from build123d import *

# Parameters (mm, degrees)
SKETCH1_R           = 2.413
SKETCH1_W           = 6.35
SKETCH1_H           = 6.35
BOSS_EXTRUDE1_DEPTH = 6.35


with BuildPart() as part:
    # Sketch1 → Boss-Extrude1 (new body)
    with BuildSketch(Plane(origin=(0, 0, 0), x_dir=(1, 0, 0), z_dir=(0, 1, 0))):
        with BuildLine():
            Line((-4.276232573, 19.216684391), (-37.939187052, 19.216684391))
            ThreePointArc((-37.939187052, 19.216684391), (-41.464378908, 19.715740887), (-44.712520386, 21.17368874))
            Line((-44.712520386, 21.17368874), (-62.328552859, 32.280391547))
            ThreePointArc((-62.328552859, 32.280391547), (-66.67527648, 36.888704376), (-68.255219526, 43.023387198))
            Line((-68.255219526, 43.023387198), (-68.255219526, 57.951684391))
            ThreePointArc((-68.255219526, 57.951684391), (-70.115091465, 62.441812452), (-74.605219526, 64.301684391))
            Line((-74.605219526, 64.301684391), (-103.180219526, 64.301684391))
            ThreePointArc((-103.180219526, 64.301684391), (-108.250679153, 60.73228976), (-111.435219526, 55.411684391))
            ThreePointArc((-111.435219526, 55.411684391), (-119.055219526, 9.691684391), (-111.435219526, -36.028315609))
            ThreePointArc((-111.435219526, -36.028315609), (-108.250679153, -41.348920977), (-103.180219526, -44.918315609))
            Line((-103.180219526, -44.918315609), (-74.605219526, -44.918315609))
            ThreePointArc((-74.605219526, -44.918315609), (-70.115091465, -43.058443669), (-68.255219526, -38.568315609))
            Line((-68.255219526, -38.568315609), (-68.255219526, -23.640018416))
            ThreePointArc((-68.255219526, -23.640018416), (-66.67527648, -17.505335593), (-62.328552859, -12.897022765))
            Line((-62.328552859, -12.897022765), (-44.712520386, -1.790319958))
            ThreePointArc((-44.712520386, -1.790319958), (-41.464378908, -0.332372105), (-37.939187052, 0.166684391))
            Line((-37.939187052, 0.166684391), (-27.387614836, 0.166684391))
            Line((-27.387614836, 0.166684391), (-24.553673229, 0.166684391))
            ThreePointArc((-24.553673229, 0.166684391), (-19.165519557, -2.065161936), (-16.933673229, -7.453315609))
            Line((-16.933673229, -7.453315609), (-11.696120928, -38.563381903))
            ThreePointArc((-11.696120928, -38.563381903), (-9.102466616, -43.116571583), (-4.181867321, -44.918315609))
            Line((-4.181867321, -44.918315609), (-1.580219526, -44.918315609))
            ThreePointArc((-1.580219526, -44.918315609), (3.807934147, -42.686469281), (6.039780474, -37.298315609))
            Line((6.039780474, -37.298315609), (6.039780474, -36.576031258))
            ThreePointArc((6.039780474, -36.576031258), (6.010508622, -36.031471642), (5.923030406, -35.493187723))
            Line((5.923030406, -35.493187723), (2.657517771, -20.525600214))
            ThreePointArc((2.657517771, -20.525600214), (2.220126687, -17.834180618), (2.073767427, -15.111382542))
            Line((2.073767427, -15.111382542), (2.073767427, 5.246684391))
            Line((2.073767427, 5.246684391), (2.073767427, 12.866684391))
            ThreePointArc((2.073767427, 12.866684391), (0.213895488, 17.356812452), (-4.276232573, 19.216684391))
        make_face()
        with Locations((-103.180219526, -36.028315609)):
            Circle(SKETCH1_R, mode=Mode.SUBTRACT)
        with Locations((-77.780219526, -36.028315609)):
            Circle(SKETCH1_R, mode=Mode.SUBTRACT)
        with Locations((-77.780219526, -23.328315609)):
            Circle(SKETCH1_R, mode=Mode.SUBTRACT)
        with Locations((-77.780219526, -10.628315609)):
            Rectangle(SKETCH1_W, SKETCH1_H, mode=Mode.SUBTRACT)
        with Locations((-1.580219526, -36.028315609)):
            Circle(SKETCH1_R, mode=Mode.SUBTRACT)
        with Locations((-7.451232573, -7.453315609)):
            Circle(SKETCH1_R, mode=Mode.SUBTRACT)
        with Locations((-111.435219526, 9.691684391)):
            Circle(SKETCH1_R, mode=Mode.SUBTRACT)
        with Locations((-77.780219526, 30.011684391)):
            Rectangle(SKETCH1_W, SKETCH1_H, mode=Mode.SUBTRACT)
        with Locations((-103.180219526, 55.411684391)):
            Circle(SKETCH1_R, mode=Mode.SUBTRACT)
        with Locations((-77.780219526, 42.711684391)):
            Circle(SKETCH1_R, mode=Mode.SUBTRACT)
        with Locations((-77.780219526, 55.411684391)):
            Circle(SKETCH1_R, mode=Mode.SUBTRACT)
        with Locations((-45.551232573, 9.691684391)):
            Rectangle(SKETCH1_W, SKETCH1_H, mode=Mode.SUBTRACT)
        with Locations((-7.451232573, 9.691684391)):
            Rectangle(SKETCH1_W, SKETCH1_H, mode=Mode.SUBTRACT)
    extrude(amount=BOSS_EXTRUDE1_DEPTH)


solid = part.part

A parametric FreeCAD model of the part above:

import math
import FreeCAD as App
import Part
import Sketcher
Q = App.Units.Quantity

doc = App.newDocument("Part")
body = doc.addObject("PartDesign::Body", "Body")

sketch1 = body.newObject("Sketcher::SketchObject", "Sketch")
sketch1.AttachmentSupport = (doc.getObject("XZ_Plane"), [""])
sketch1.MapMode = "FlatFace"
sketch1.addGeometry([
    Part.LineSegment(App.Vector(-4.276233, -19.216684, 0), App.Vector(-37.939187, -19.216684, 0)),
    Part.ArcOfCircle(Part.Circle(App.Vector(-37.939187, -31.916684, 0), App.Vector(0, 0, 1), 12.7), math.radians(90), math.radians(122.230953)),
    Part.LineSegment(App.Vector(-44.71252, -21.173689, 0), App.Vector(-62.328553, -32.280392, 0)),
    Part.ArcOfCircle(Part.Circle(App.Vector(-55.55522, -43.023387, 0), App.Vector(0, 0, 1), 12.7), math.radians(122.230953), math.radians(180)),
    Part.LineSegment(App.Vector(-68.25522, -43.023387, 0), App.Vector(-68.25522, -57.951684, 0)),
    Part.ArcOfCircle(Part.Circle(App.Vector(-74.60522, -57.951684, 0), App.Vector(0, 0, 1), 6.35), math.radians(-90), math.radians(0)),
    Part.LineSegment(App.Vector(-74.60522, -64.301684, 0), App.Vector(-103.18022, -64.301684, 0)),
    Part.ArcOfCircle(Part.Circle(App.Vector(-97.302598, -50.566214, 0), App.Vector(0, 0, 1), 14.9402), math.radians(-161.075356), math.radians(-113.166837)),
    Part.ArcOfCircle(Part.Circle(App.Vector(21.91478, -9.691684, 0), App.Vector(0, 0, 1), 140.97), math.radians(161.075356), math.radians(198.924644)),
    Part.ArcOfCircle(Part.Circle(App.Vector(-97.302598, 31.182845, 0), App.Vector(0, 0, 1), 14.9402), math.radians(113.166837), math.radians(161.075356)),
    Part.LineSegment(App.Vector(-103.18022, 44.918316, 0), App.Vector(-74.60522, 44.918316, 0)),
    Part.ArcOfCircle(Part.Circle(App.Vector(-74.60522, 38.568316, 0), App.Vector(0, 0, 1), 6.35), math.radians(0), math.radians(90)),
    Part.LineSegment(App.Vector(-68.25522, 38.568316, 0), App.Vector(-68.25522, 23.640018, 0)),
    Part.ArcOfCircle(Part.Circle(App.Vector(-55.55522, 23.640018, 0), App.Vector(0, 0, 1), 12.7), math.radians(180), math.radians(237.769047)),
    Part.LineSegment(App.Vector(-62.328553, 12.897023, 0), App.Vector(-44.71252, 1.79032, 0)),
    Part.ArcOfCircle(Part.Circle(App.Vector(-37.939187, 12.533316, 0), App.Vector(0, 0, 1), 12.7), math.radians(-122.230953), math.radians(-90)),
    Part.LineSegment(App.Vector(-37.939187, -0.166684, 0), App.Vector(-24.553673, -0.166684, 0)),
    Part.ArcOfCircle(Part.Circle(App.Vector(-24.553673, 7.453316, 0), App.Vector(0, 0, 1), 7.62), math.radians(-90), math.radians(0)),
    Part.LineSegment(App.Vector(-16.933673, 7.453316, 0), App.Vector(-11.696121, 38.563382, 0)),
    Part.ArcOfCircle(Part.Circle(App.Vector(-4.181867, 37.298316, 0), App.Vector(0, 0, 1), 7.62), math.radians(90), math.radians(170.443553)),
    Part.LineSegment(App.Vector(-4.181867, 44.918316, 0), App.Vector(-1.58022, 44.918316, 0)),
    Part.ArcOfCircle(Part.Circle(App.Vector(-1.58022, 37.298316, 0), App.Vector(0, 0, 1), 7.62), math.radians(0), math.radians(90)),
    Part.LineSegment(App.Vector(6.03978, 37.298316, 0), App.Vector(6.03978, 36.576031, 0)),
    Part.ArcOfCircle(Part.Circle(App.Vector(0.95978, 36.576031, 0), App.Vector(0, 0, 1), 5.08), math.radians(-12.307494), math.radians(0)),
    Part.LineSegment(App.Vector(5.92303, 35.493188, 0), App.Vector(2.657518, 20.5256, 0)),
    Part.ArcOfCircle(Part.Circle(App.Vector(27.473767, 15.111383, 0), App.Vector(0, 0, 1), 25.4), math.radians(167.692506), math.radians(180)),
    Part.LineSegment(App.Vector(2.073767, 15.111383, 0), App.Vector(2.073767, -12.866684, 0)),
    Part.ArcOfCircle(Part.Circle(App.Vector(-4.276233, -12.866684, 0), App.Vector(0, 0, 1), 6.35), math.radians(-90), math.radians(0)),
    Part.Circle(App.Vector(-103.18022, 36.028316, 0), App.Vector(0, 0, 1), 2.413),
    Part.Circle(App.Vector(-77.78022, 36.028316, 0), App.Vector(0, 0, 1), 2.413),
    Part.Circle(App.Vector(-77.78022, 23.328316, 0), App.Vector(0, 0, 1), 2.413),
    Part.LineSegment(App.Vector(-74.60522, 13.803316, 0), App.Vector(-80.95522, 13.803316, 0)),
    Part.LineSegment(App.Vector(-80.95522, 13.803316, 0), App.Vector(-80.95522, 7.453316, 0)),
    Part.LineSegment(App.Vector(-80.95522, 7.453316, 0), App.Vector(-74.60522, 7.453316, 0)),
    Part.LineSegment(App.Vector(-74.60522, 7.453316, 0), App.Vector(-74.60522, 13.803316, 0)),
    Part.Circle(App.Vector(-1.58022, 36.028316, 0), App.Vector(0, 0, 1), 2.413),
    Part.Circle(App.Vector(-7.451233, 7.453316, 0), App.Vector(0, 0, 1), 2.413),
    Part.Circle(App.Vector(-111.43522, -9.691684, 0), App.Vector(0, 0, 1), 2.413),
    Part.LineSegment(App.Vector(-74.60522, -26.836684, 0), App.Vector(-80.95522, -26.836684, 0)),
    Part.LineSegment(App.Vector(-80.95522, -26.836684, 0), App.Vector(-80.95522, -33.186684, 0)),
    Part.LineSegment(App.Vector(-80.95522, -33.186684, 0), App.Vector(-74.60522, -33.186684, 0)),
    Part.LineSegment(App.Vector(-74.60522, -33.186684, 0), App.Vector(-74.60522, -26.836684, 0)),
    Part.Circle(App.Vector(-103.18022, -55.411684, 0), App.Vector(0, 0, 1), 2.413),
    Part.Circle(App.Vector(-77.78022, -42.711684, 0), App.Vector(0, 0, 1), 2.413),
    Part.Circle(App.Vector(-77.78022, -55.411684, 0), App.Vector(0, 0, 1), 2.413),
    Part.LineSegment(App.Vector(-42.376233, -6.516684, 0), App.Vector(-48.726233, -6.516684, 0)),
    Part.LineSegment(App.Vector(-48.726233, -6.516684, 0), App.Vector(-48.726233, -12.866684, 0)),
    Part.LineSegment(App.Vector(-48.726233, -12.866684, 0), App.Vector(-42.376233, -12.866684, 0)),
    Part.LineSegment(App.Vector(-42.376233, -12.866684, 0), App.Vector(-42.376233, -6.516684, 0)),
    Part.LineSegment(App.Vector(-4.276233, -6.516684, 0), App.Vector(-10.626233, -6.516684, 0)),
    Part.LineSegment(App.Vector(-10.626233, -6.516684, 0), App.Vector(-10.626233, -12.866684, 0)),
    Part.LineSegment(App.Vector(-10.626233, -12.866684, 0), App.Vector(-4.276233, -12.866684, 0)),
    Part.LineSegment(App.Vector(-4.276233, -12.866684, 0), App.Vector(-4.276233, -6.516684, 0)),
], False)
sketch1.addConstraint([
    Sketcher.Constraint("Tangent", 0, 2, 1, 1),
    Sketcher.Constraint("Tangent", 1, 2, 2, 1),
    Sketcher.Constraint("Tangent", 2, 2, 3, 1),
    Sketcher.Constraint("Tangent", 3, 2, 4, 1),
    Sketcher.Constraint("Tangent", 4, 2, 5, 2),
    Sketcher.Constraint("Tangent", 5, 1, 6, 1),
    Sketcher.Constraint("Coincident", 6, 2, 7, 2),
    Sketcher.Constraint("Tangent", 7, 1, 8, 2),
    Sketcher.Constraint("Tangent", 8, 1, 9, 2),
    Sketcher.Constraint("Coincident", 9, 1, 10, 1),
    Sketcher.Constraint("Tangent", 10, 2, 11, 2),
    Sketcher.Constraint("Tangent", 11, 1, 12, 1),
    Sketcher.Constraint("Tangent", 12, 2, 13, 1),
    Sketcher.Constraint("Tangent", 13, 2, 14, 1),
    Sketcher.Constraint("Tangent", 14, 2, 15, 1),
    Sketcher.Constraint("Tangent", 15, 2, 16, 1),
    Sketcher.Constraint("Tangent", 16, 2, 17, 1),
    Sketcher.Constraint("Coincident", 17, 2, 18, 1),
    Sketcher.Constraint("Tangent", 18, 2, 19, 2),
    Sketcher.Constraint("Tangent", 19, 1, 20, 1),
    Sketcher.Constraint("Tangent", 20, 2, 21, 2),
    Sketcher.Constraint("Tangent", 21, 1, 22, 1),
    Sketcher.Constraint("Tangent", 22, 2, 23, 2),
    Sketcher.Constraint("Tangent", 23, 1, 24, 1),
    Sketcher.Constraint("Tangent", 24, 2, 25, 1),
    Sketcher.Constraint("Tangent", 25, 2, 26, 1),
    Sketcher.Constraint("Tangent", 26, 2, 27, 2),
    Sketcher.Constraint("Tangent", 27, 1, 0, 1),
    Sketcher.Constraint("Coincident", 31, 2, 32, 1),
    Sketcher.Constraint("Coincident", 32, 2, 33, 1),
    Sketcher.Constraint("Coincident", 33, 2, 34, 1),
    Sketcher.Constraint("Coincident", 34, 2, 31, 1),
    Sketcher.Constraint("Coincident", 38, 2, 39, 1),
    Sketcher.Constraint("Coincident", 39, 2, 40, 1),
    Sketcher.Constraint("Coincident", 40, 2, 41, 1),
    Sketcher.Constraint("Coincident", 41, 2, 38, 1),
    Sketcher.Constraint("Coincident", 45, 2, 46, 1),
    Sketcher.Constraint("Coincident", 46, 2, 47, 1),
    Sketcher.Constraint("Coincident", 47, 2, 48, 1),
    Sketcher.Constraint("Coincident", 48, 2, 45, 1),
    Sketcher.Constraint("Coincident", 49, 2, 50, 1),
    Sketcher.Constraint("Coincident", 50, 2, 51, 1),
    Sketcher.Constraint("Coincident", 51, 2, 52, 1),
    Sketcher.Constraint("Coincident", 52, 2, 49, 1),
    Sketcher.Constraint("Horizontal", 0),
    Sketcher.Constraint("Vertical", 4),
    Sketcher.Constraint("Horizontal", 6),
    Sketcher.Constraint("Horizontal", 10),
    Sketcher.Constraint("Vertical", 12),
    Sketcher.Constraint("Horizontal", 16),
    Sketcher.Constraint("Horizontal", 20),
    Sketcher.Constraint("Vertical", 22),
    Sketcher.Constraint("Vertical", 26),
    Sketcher.Constraint("Horizontal", 31),
    Sketcher.Constraint("Vertical", 32),
    Sketcher.Constraint("Horizontal", 33),
    Sketcher.Constraint("Vertical", 34),
    Sketcher.Constraint("Horizontal", 38),
    Sketcher.Constraint("Vertical", 39),
    Sketcher.Constraint("Horizontal", 40),
    Sketcher.Constraint("Vertical", 41),
    Sketcher.Constraint("Horizontal", 45),
    Sketcher.Constraint("Vertical", 46),
    Sketcher.Constraint("Horizontal", 47),
    Sketcher.Constraint("Vertical", 48),
    Sketcher.Constraint("Horizontal", 49),
    Sketcher.Constraint("Vertical", 50),
    Sketcher.Constraint("Horizontal", 51),
    Sketcher.Constraint("Vertical", 52),
    Sketcher.Constraint("Coincident", 51, 2, 27, 3),
    Sketcher.Constraint("Equal", 1, 3),
    Sketcher.Constraint("Equal", 7, 9),
    Sketcher.Constraint("Equal", 5, 11),
    Sketcher.Constraint("Equal", 3, 13),
    Sketcher.Constraint("Equal", 13, 15),
    Sketcher.Constraint("Equal", 17, 19),
    Sketcher.Constraint("Equal", 19, 21),
    Sketcher.Constraint("Equal", 11, 27),
    Sketcher.Constraint("Equal", 28, 29),
    Sketcher.Constraint("Equal", 29, 30),
    Sketcher.Constraint("Equal", 30, 35),
    Sketcher.Constraint("Equal", 35, 36),
    Sketcher.Constraint("Equal", 36, 37),
    Sketcher.Constraint("Equal", 37, 42),
    Sketcher.Constraint("Equal", 42, 43),
    Sketcher.Constraint("Equal", 43, 44),
    Sketcher.Constraint("Horizontal", 28, 3, 29, 3),
    Sketcher.Constraint("Horizontal", 29, 3, 35, 3),
    Sketcher.Constraint("Horizontal", 17, 3, 36, 3),
    Sketcher.Constraint("Horizontal", 8, 3, 37, 3),
    Sketcher.Constraint("Horizontal", 42, 3, 44, 3),
    Sketcher.Constraint("Horizontal", 44, 3, 7, 1),
    Sketcher.Constraint("Horizontal", 35, 3, 8, 1),
    Sketcher.Constraint("Horizontal", 36, 3, 17, 2),
    Sketcher.Constraint("Horizontal", 10, 2, 19, 1),
    Sketcher.Constraint("Horizontal", 17, 2, 32, 2),
    Sketcher.Constraint("Horizontal", 26, 2, 46, 2),
    Sketcher.Constraint("Horizontal", 48, 2, 49, 2),
    Sketcher.Constraint("Vertical", 7, 3, 9, 3),
    Sketcher.Constraint("Vertical", 5, 3, 11, 3),
    Sketcher.Constraint("Vertical", 1, 3, 15, 3),
    Sketcher.Constraint("Vertical", 29, 3, 30, 3),
    Sketcher.Constraint("Vertical", 21, 3, 35, 3),
    Sketcher.Constraint("Vertical", 28, 3, 42, 3),
    Sketcher.Constraint("Vertical", 30, 3, 43, 3),
    Sketcher.Constraint("Vertical", 43, 3, 44, 3),
    Sketcher.Constraint("Vertical", 42, 3, 6, 2),
    Sketcher.Constraint("Vertical", 37, 3, 7, 1),
    Sketcher.Constraint("Vertical", 6, 2, 9, 1),
    Sketcher.Constraint("Vertical", 2, 2, 13, 2),
    Sketcher.Constraint("Vertical", 10, 2, 33, 2),
    Sketcher.Constraint("Vertical", 32, 2, 38, 2),
    Sketcher.Constraint("Vertical", 34, 2, 40, 2),
    Sketcher.Constraint("Equal", 40, 45),
    Sketcher.Constraint("Equal", 47, 49),
    Sketcher.Constraint("Equal", 4, 12),
    Sketcher.Constraint("Equal", 51, 32),
    Sketcher.Constraint("Equal", 34, 39),
    Sketcher.Constraint("Equal", 41, 46),
    Sketcher.Constraint("Radius", 25, Q("1 in")),
    Sketcher.Constraint("Radius", 1, Q("0.5 in")),
    Sketcher.Constraint("Radius", 17, Q("0.3 in")),
    Sketcher.Constraint("Radius", 23, Q("0.2 in")),
    Sketcher.Constraint("Diameter", 28, Q("0.19 in")),
    Sketcher.Constraint("Radius", 5, Q("0.25 in")),
    Sketcher.Constraint("Radius", 8, Q("5.55 in")),
    Sketcher.Constraint("DistanceX", 31, 2, 31, 1, Q("0.25 in")),
    Sketcher.Constraint("DistanceX", 6, 2, 6, 1, Q("1.125 in")),
    Sketcher.Constraint("Radius", 7, 14.9402),
    Sketcher.Constraint("DistanceY", -1, 1, 24, 2, 20.5256),
    Sketcher.Constraint("Distance", 18, 31.547871),
    Sketcher.Constraint("Distance", 24, 15.319669),
    Sketcher.Constraint("DistanceX", 0, 2, 0, 1, 33.662954),
    Sketcher.Constraint("DistanceX", 16, 1, 16, 2, 13.385514),
    Sketcher.Constraint("DistanceX", 20, 1, 20, 2, 2.601648),
    Sketcher.Constraint("DistanceY", 4, 2, 4, 1, 14.928297),
    Sketcher.Constraint("DistanceY", 22, 2, 22, 1, 0.722284),
    Sketcher.Constraint("DistanceY", 26, 2, 26, 1, 27.978067),
    Sketcher.Constraint("DistanceX", 3, 3, -1, 1, 55.55522),
    Sketcher.Constraint("DistanceX", -1, 1, 8, 3, 21.91478),
    Sketcher.Constraint("DistanceY", -1, 1, 13, 3, 23.640018),
    Sketcher.Constraint("DistanceX", 21, 3, -1, 1, 1.58022),
    Sketcher.Constraint("DistanceX", 29, 3, -1, 1, 77.78022),
    Sketcher.Constraint("DistanceY", -1, 1, 30, 3, 23.328316),
    Sketcher.Constraint("DistanceX", 36, 3, -1, 1, 7.451233),
    Sketcher.Constraint("DistanceY", 43, 3, -1, 1, 42.711684),
    Sketcher.Constraint("DistanceY", 38, 2, -1, 1, 26.836684),
    Sketcher.Constraint("DistanceX", 45, 2, -1, 1, 48.726233),
])
pad1 = body.newObject("PartDesign::Pad", "Pad")
pad1.Profile = sketch1
pad1.Length = Q("0.25 in")
pad1.Reversed = True

doc.recompute()
